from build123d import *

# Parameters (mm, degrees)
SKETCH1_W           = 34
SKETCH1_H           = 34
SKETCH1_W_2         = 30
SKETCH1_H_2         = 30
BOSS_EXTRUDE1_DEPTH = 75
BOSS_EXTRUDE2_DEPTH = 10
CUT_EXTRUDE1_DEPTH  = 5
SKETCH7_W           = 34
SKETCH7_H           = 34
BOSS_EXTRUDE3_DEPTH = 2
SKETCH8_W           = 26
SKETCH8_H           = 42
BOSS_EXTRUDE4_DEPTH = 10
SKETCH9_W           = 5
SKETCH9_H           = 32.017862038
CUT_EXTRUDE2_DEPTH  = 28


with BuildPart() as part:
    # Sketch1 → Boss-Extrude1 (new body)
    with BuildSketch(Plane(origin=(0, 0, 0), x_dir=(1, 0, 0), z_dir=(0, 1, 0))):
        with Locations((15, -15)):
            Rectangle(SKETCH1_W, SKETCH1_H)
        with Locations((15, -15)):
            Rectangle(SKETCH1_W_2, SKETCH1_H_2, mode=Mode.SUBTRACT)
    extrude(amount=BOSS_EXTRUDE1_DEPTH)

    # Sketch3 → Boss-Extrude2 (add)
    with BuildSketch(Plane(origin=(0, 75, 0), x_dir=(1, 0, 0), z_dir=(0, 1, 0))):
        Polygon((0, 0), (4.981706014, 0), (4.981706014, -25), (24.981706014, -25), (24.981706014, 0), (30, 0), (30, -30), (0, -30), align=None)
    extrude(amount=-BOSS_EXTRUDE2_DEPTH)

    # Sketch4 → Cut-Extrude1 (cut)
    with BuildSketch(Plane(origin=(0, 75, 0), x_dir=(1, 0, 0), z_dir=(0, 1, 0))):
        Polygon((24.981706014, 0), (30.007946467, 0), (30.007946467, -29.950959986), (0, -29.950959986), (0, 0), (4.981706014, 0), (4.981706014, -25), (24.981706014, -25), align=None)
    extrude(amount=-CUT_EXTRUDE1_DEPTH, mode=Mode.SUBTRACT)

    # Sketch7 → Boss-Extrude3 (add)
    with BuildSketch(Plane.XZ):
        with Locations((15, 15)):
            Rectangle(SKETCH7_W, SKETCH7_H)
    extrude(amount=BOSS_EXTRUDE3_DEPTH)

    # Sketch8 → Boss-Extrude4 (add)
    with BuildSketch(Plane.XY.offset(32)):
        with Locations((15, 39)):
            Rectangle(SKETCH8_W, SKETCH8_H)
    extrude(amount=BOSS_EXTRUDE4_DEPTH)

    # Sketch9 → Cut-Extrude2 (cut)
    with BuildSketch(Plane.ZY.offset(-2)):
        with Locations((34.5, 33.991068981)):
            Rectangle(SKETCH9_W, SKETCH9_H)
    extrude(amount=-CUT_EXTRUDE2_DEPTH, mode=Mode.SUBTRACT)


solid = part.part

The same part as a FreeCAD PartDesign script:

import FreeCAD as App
import Part
import Sketcher
Q = App.Units.Quantity

doc = App.newDocument("Part")
params = doc.addObject("Spreadsheet::Sheet", "Params")
for row, (alias, value) in enumerate([
    ("sketch1_width", "34 mm"),
    ("sketch1_width2", "30 mm"),
    ("pad1_length", "75 mm"),
    ("sketch2_width", "30 mm"),
    ("sketch2_width2", "20 mm"),
    ("sketch2_height", "25 mm"),
    ("pad2_length", "10 mm"),
    ("sketch3_width", "20 mm"),
    ("sketch3_height", "25 mm"),
    ("pocket1_length", "5 mm"),
    ("sketch4_width", "34 mm"),
    ("pad3_length", "2 mm"),
    ("sketch5_width", "26 mm"),
    ("sketch5_height", "42 mm"),
    ("pad4_length", "10 mm"),
    ("sketch6_height", "5 mm"),
    ("pocket2_length", "28 mm"),
], start=1):
    params.set(f"A{row}", alias)
    params.set(f"B{row}", "=" + value)
    params.setAlias(f"B{row}", alias)

body = doc.addObject("PartDesign::Body", "Body")

sketch1 = doc.addObject("Sketcher::SketchObject", "Sketch")
body.addObject(sketch1)
sketch1.AttachmentSupport = (doc.XZ_Plane, [""])
sketch1.MapMode = "FlatFace"
sketch1.addGeometry([
    Part.LineSegment(App.Vector(-2, -2, 0), App.Vector(-2, 32, 0)),
    Part.LineSegment(App.Vector(-2, 32, 0), App.Vector(32, 32, 0)),
    Part.LineSegment(App.Vector(32, 32, 0), App.Vector(32, -2, 0)),
    Part.LineSegment(App.Vector(32, -2, 0), App.Vector(-2, -2, 0)),
    Part.LineSegment(App.Vector(30, 30, 0), App.Vector(0, 30, 0)),
    Part.LineSegment(App.Vector(0, 30, 0), App.Vector(0, 0, 0)),
    Part.LineSegment(App.Vector(0, 0, 0), App.Vector(30, 0, 0)),
    Part.LineSegment(App.Vector(30, 0, 0), App.Vector(30, 30, 0)),
], False)
sketch1.addConstraint([
    Sketcher.Constraint("Coincident", 0, 2, 1, 1),
    Sketcher.Constraint("Coincident", 1, 2, 2, 1),
    Sketcher.Constraint("Coincident", 2, 2, 3, 1),
    Sketcher.Constraint("Coincident", 3, 2, 0, 1),
    Sketcher.Constraint("Coincident", 4, 2, 5, 1),
    Sketcher.Constraint("Coincident", 5, 2, 6, 1),
    Sketcher.Constraint("Coincident", 6, 2, 7, 1),
    Sketcher.Constraint("Coincident", 7, 2, 4, 1),
    Sketcher.Constraint("Vertical", 0),
    Sketcher.Constraint("Horizontal", 1),
    Sketcher.Constraint("Vertical", 2),
    Sketcher.Constraint("Horizontal", 3),
    Sketcher.Constraint("Horizontal", 4),
    Sketcher.Constraint("Vertical", 5),
    Sketcher.Constraint("Horizontal", 6),
    Sketcher.Constraint("Vertical", 7),
    Sketcher.Constraint("Coincident", 5, 2, -1, 1),
    Sketcher.Constraint("Equal", 3, 0),
    Sketcher.Constraint("Equal", 6, 5),
    Sketcher.Constraint("DistanceX", 1, 1, 1, 2, Q("34 mm")),
    Sketcher.Constraint("DistanceX", 4, 2, 4, 1, Q("30 mm")),
    Sketcher.Constraint("DistanceX", 0, 2, -1, 1, Q("2 mm")),
    Sketcher.Constraint("DistanceY", -1, 1, 0, 2, Q("32 mm")),
])
sketch1.setExpression("Constraints[19]", "Params.sketch1_width")
sketch1.setExpression("Constraints[20]", "Params.sketch1_width2")
pad1 = doc.addObject("PartDesign::Pad", "Pad")
body.addObject(pad1)
pad1.Profile = sketch1
pad1.setExpression("Length", "Params.pad1_length")
pad1.Reversed = True

sketch2 = doc.addObject("Sketcher::SketchObject", "Sketch001")
body.addObject(sketch2)
sketch2.AttachmentSupport = (doc.XZ_Plane, [""])
sketch2.MapMode = "FlatFace"
sketch2.AttachmentOffset = App.Placement(App.Vector(0, 0, -75), App.Rotation())
sketch2.addGeometry([
    Part.LineSegment(App.Vector(5, 0, 0), App.Vector(0, 0, 0)),
    Part.LineSegment(App.Vector(0, 0, 0), App.Vector(0, 30, 0)),
    Part.LineSegment(App.Vector(0, 30, 0), App.Vector(30, 30, 0)),
    Part.LineSegment(App.Vector(30, 30, 0), App.Vector(30, 0, 0)),
    Part.LineSegment(App.Vector(30, 0, 0), App.Vector(25, 0, 0)),
    Part.LineSegment(App.Vector(25, 0, 0), App.Vector(25, 25, 0)),
    Part.LineSegment(App.Vector(25, 25, 0), App.Vector(5, 25, 0)),
    Part.LineSegment(App.Vector(5, 25, 0), App.Vector(5, 0, 0)),
], False)
sketch2.addConstraint([
    Sketcher.Constraint("Coincident", 0, 2, 1, 1),
    Sketcher.Constraint("Coincident", 1, 2, 2, 1),
    Sketcher.Constraint("Coincident", 2, 2, 3, 1),
    Sketcher.Constraint("Coincident", 3, 2, 4, 1),
    Sketcher.Constraint("Coincident", 4, 2, 5, 1),
    Sketcher.Constraint("Coincident", 5, 2, 6, 1),
    Sketcher.Constraint("Coincident", 6, 2, 7, 1),
    Sketcher.Constraint("Coincident", 7, 2, 0, 1),
    Sketcher.Constraint("Horizontal", 0),
    Sketcher.Constraint("Vertical", 1),
    Sketcher.Constraint("Horizontal", 2),
    Sketcher.Constraint("Vertical", 3),
    Sketcher.Constraint("Horizontal", 4),
    Sketcher.Constraint("Vertical", 5),
    Sketcher.Constraint("Horizontal", 6),
    Sketcher.Constraint("Vertical", 7),
    Sketcher.Constraint("Coincident", 0, 2, -1, 1),
    Sketcher.Constraint("PointOnObject", 3, 2, -1),
    Sketcher.Constraint("Equal", 2, 1),
    Sketcher.Constraint("DistanceX", 2, 1, 2, 2, Q("30 mm")),
    Sketcher.Constraint("DistanceX", 6, 2, 6, 1, Q("20 mm")),
    Sketcher.Constraint("DistanceY", 5, 1, 5, 2, Q("25 mm")),
    Sketcher.Constraint("DistanceX", 0, 2, 0, 1, Q("4.981706 mm")),
])
sketch2.setExpression("Constraints[19]", "Params.sketch2_width")
sketch2.setExpression("Constraints[20]", "Params.sketch2_width2")
sketch2.setExpression("Constraints[21]", "Params.sketch2_height")
pad2 = doc.addObject("PartDesign::Pad", "Pad001")
body.addObject(pad2)
pad2.Profile = sketch2
pad2.setExpression("Length", "Params.pad2_length")

sketch3 = doc.addObject("Sketcher::SketchObject", "Sketch002")
body.addObject(sketch3)
sketch3.AttachmentSupport = (doc.XZ_Plane, [""])
sketch3.MapMode = "FlatFace"
sketch3.AttachmentOffset = App.Placement(App.Vector(0, 0, -75), App.Rotation())
sketch3.addGeometry([
    Part.LineSegment(App.Vector(30, 0, 0), App.Vector(25, 0, 0)),
    Part.LineSegment(App.Vector(25, 0, 0), App.Vector(25, 25, 0)),
    Part.LineSegment(App.Vector(25, 25, 0), App.Vector(5, 25, 0)),
    Part.LineSegment(App.Vector(5, 25, 0), App.Vector(5, 0, 0)),
    Part.LineSegment(App.Vector(5, 0, 0), App.Vector(0, 0, 0)),
    Part.LineSegment(App.Vector(0, 0, 0), App.Vector(0, 30, 0)),
    Part.LineSegment(App.Vector(0, 30, 0), App.Vector(30, 30, 0)),
    Part.LineSegment(App.Vector(30, 30, 0), App.Vector(30, 0, 0)),
], False)
sketch3.addConstraint([
    Sketcher.Constraint("Coincident", 0, 2, 1, 1),
    Sketcher.Constraint("Coincident", 1, 2, 2, 1),
    Sketcher.Constraint("Coincident", 2, 2, 3, 1),
    Sketcher.Constraint("Coincident", 3, 2, 4, 1),
    Sketcher.Constraint("Coincident", 4, 2, 5, 1),
    Sketcher.Constraint("Coincident", 5, 2, 6, 1),
    Sketcher.Constraint("Coincident", 6, 2, 7, 1),
    Sketcher.Constraint("Coincident", 7, 2, 0, 1),
    Sketcher.Constraint("Horizontal", 0),
    Sketcher.Constraint("Vertical", 1),
    Sketcher.Constraint("Horizontal", 2),
    Sketcher.Constraint("Vertical", 3),
    Sketcher.Constraint("Horizontal", 4),
    Sketcher.Constraint("Vertical", 5),
    Sketcher.Constraint("Horizontal", 6),
    Sketcher.Constraint("Vertical", 7),
    Sketcher.Constraint("Coincident", 4, 2, -1, 1),
    Sketcher.Constraint("PointOnObject", 0, 2, -1),
    Sketcher.Constraint("DistanceX", 2, 2, 2, 1, Q("20 mm")),
    Sketcher.Constraint("DistanceY", 1, 1, 1, 2, Q("25 mm")),
    Sketcher.Constraint("DistanceX", 0, 2, 0, 1, Q("5.02624 mm")),
    Sketcher.Constraint("DistanceY", 5, 1, 5, 2, Q("29.95096 mm")),
    Sketcher.Constraint("DistanceX", 4, 2, 4, 1, Q("4.981706 mm")),
])
sketch3.setExpression("Constraints[18]", "Params.sketch3_width")
sketch3.setExpression("Constraints[19]", "Params.sketch3_height")
pocket1 = doc.addObject("PartDesign::Pocket", "Pocket")
body.addObject(pocket1)
pocket1.Profile = sketch3
pocket1.setExpression("Length", "Params.pocket1_length")
pocket1.Reversed = True

sketch4 = doc.addObject("Sketcher::SketchObject", "Sketch003")
body.addObject(sketch4)
sketch4.AttachmentSupport = (doc.XZ_Plane, [""])
sketch4.MapMode = "FlatFace"
sketch4.addGeometry([
    Part.LineSegment(App.Vector(-2, 32, 0), App.Vector(-2, -2, 0)),
    Part.LineSegment(App.Vector(-2, -2, 0), App.Vector(32, -2, 0)),
    Part.LineSegment(App.Vector(32, -2, 0), App.Vector(32, 32, 0)),
    Part.LineSegment(App.Vector(32, 32, 0), App.Vector(-2, 32, 0)),
], False)
sketch4.addConstraint([
    Sketcher.Constraint("Coincident", 0, 2, 1, 1),
    Sketcher.Constraint("Coincident", 1, 2, 2, 1),
    Sketcher.Constraint("Coincident", 2, 2, 3, 1),
    Sketcher.Constraint("Coincident", 3, 2, 0, 1),
    Sketcher.Constraint("Vertical", 0),
    Sketcher.Constraint("Horizontal", 1),
    Sketcher.Constraint("Vertical", 2),
    Sketcher.Constraint("Horizontal", 3),
    Sketcher.Constraint("Equal", 3, 0),
    Sketcher.Constraint("DistanceX", 1, 1, 1, 2, Q("34 mm")),
    Sketcher.Constraint("DistanceX", 0, 2, -1, 1, Q("2 mm")),
    Sketcher.Constraint("DistanceY", 0, 2, -1, 1, Q("2 mm")),
])
sketch4.setExpression("Constraints[9]", "Params.sketch4_width")
pad3 = doc.addObject("PartDesign::Pad", "Pad002")
body.addObject(pad3)
pad3.Profile = sketch4
pad3.setExpression("Length", "Params.pad3_length")

sketch5 = doc.addObject("Sketcher::SketchObject", "Sketch004")
body.addObject(sketch5)
sketch5.AttachmentSupport = (doc.XY_Plane, [""])
sketch5.MapMode = "FlatFace"
sketch5.AttachmentOffset = App.Placement(App.Vector(0, 0, 32), App.Rotation())
sketch5.addGeometry([
    Part.LineSegment(App.Vector(2, 60, 0), App.Vector(2, 18, 0)),
    Part.LineSegment(App.Vector(2, 18, 0), App.Vector(28, 18, 0)),
    Part.LineSegment(App.Vector(28, 18, 0), App.Vector(28, 60, 0)),
    Part.LineSegment(App.Vector(28, 60, 0), App.Vector(2, 60, 0)),
], False)
sketch5.addConstraint([
    Sketcher.Constraint("Coincident", 0, 2, 1, 1),
    Sketcher.Constraint("Coincident", 1, 2, 2, 1),
    Sketcher.Constraint("Coincident", 2, 2, 3, 1),
    Sketcher.Constraint("Coincident", 3, 2, 0, 1),
    Sketcher.Constraint("Vertical", 0),
    Sketcher.Constraint("Horizontal", 1),
    Sketcher.Constraint("Vertical", 2),
    Sketcher.Constraint("Horizontal", 3),
    Sketcher.Constraint("DistanceX", 1, 1, 1, 2, Q("26 mm")),
    Sketcher.Constraint("DistanceY", 0, 2, 0, 1, Q("42 mm")),
    Sketcher.Constraint("DistanceX", -1, 1, 0, 2, Q("2 mm")),
    Sketcher.Constraint("DistanceY", -1, 1, 0, 2, Q("18 mm")),
])
sketch5.setExpression("Constraints[8]", "Params.sketch5_width")
sketch5.setExpression("Constraints[9]", "Params.sketch5_height")
pad4 = doc.addObject("PartDesign::Pad", "Pad003")
body.addObject(pad4)
pad4.Profile = sketch5
pad4.setExpression("Length", "Params.pad4_length")

sketch6 = doc.addObject("Sketcher::SketchObject", "Sketch005")
body.addObject(sketch6)
sketch6.AttachmentSupport = (doc.YZ_Plane, [""])
sketch6.MapMode = "FlatFace"
sketch6.AttachmentOffset = App.Placement(App.Vector(0, 0, 2), App.Rotation())
sketch6.addGeometry([
    Part.LineSegment(App.Vector(50, 32, 0), App.Vector(18, 32, 0)),
    Part.LineSegment(App.Vector(18, 32, 0), App.Vector(18, 37, 0)),
    Part.LineSegment(App.Vector(18, 37, 0), App.Vector(50, 37, 0)),
    Part.LineSegment(App.Vector(50, 37, 0), App.Vector(50, 32, 0)),
], False)
sketch6.addConstraint([
    Sketcher.Constraint("Coincident", 0, 2, 1, 1),
    Sketcher.Constraint("Coincident", 1, 2, 2, 1),
    Sketcher.Constraint("Coincident", 2, 2, 3, 1),
    Sketcher.Constraint("Coincident", 3, 2, 0, 1),
    Sketcher.Constraint("Horizontal", 0),
    Sketcher.Constraint("Vertical", 1),
    Sketcher.Constraint("Horizontal", 2),
    Sketcher.Constraint("Vertical", 3),
    Sketcher.Constraint("DistanceY", 1, 1, 1, 2, Q("5 mm")),
    Sketcher.Constraint("DistanceY", -1, 1, 0, 2, Q("32 mm")),
    Sketcher.Constraint("DistanceX", -1, 1, 2, 2, Q("50 mm")),
    Sketcher.Constraint("DistanceX", 0, 2, 0, 1, Q("32.017862 mm")),
])
sketch6.setExpression("Constraints[8]", "Params.sketch6_height")
pocket2 = doc.addObject("PartDesign::Pocket", "Pocket001")
body.addObject(pocket2)
pocket2.Profile = sketch6
pocket2.setExpression("Length", "Params.pocket2_length")
pocket2.Reversed = True

doc.recompute()
